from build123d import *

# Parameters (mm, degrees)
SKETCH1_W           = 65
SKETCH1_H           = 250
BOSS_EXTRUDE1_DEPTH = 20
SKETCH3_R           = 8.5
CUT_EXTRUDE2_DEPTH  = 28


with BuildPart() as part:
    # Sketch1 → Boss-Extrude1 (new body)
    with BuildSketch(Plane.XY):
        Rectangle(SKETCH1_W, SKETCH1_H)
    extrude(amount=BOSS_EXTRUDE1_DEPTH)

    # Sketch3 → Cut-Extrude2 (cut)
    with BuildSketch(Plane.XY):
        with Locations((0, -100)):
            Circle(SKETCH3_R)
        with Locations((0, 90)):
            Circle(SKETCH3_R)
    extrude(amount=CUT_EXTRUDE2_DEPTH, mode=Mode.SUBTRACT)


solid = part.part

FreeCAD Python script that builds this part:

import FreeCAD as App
import Part
import Sketcher
Q = App.Units.Quantity

doc = App.newDocument("Part")
params = doc.addObject("Spreadsheet::Sheet", "Params")
for row, (alias, value) in enumerate([
    ("sketch1_width", "65 mm"),
    ("sketch1_height", "250 mm"),
    ("pad1_length", "20 mm"),
    ("sketch2_diameter", "17 mm"),
    ("pocket1_length", "28 mm"),
], start=1):
    params.set(f"A{row}", alias)
    params.set(f"B{row}", "=" + value)
    params.setAlias(f"B{row}", alias)

body = doc.addObject("PartDesign::Body", "Body")

# Sketch on XY plane
sketch1 = body.newObject("Sketcher::SketchObject", "Sketch")
sketch1.AttachmentSupport = (doc.getObject("XY_Plane"), [""])
sketch1.MapMode = "FlatFace"
sketch1.addGeometry(Part.LineSegment(App.Vector(-32, 125, 0), App.Vector(-32, -125, 0)), False)
sketch1.addGeometry(Part.LineSegment(App.Vector(-32, -125, 0), App.Vector(32, -125, 0)), False)
sketch1.addGeometry(Part.LineSegment(App.Vector(32, -125, 0), App.Vector(32, 125, 0)), False)
sketch1.addGeometry(Part.LineSegment(App.Vector(32, 125, 0), App.Vector(-32, 125, 0)), False)
sketch1.addConstraint(Sketcher.Constraint("Coincident", 0, 2, 1, 1))
sketch1.addConstraint(Sketcher.Constraint("Coincident", 1, 2, 2, 1))
sketch1.addConstraint(Sketcher.Constraint("Coincident", 2, 2, 3, 1))
sketch1.addConstraint(Sketcher.Constraint("Coincident", 3, 2, 0, 1))
sketch1.addConstraint(Sketcher.Constraint("Vertical", 0))
sketch1.addConstraint(Sketcher.Constraint("Horizontal", 1))
sketch1.addConstraint(Sketcher.Constraint("Vertical", 2))
sketch1.addConstraint(Sketcher.Constraint("Horizontal", 3))
sketch1.addConstraint(Sketcher.Constraint("Symmetric", 0, 2, 2, 2, -1, 1))
sketch1.addConstraint(Sketcher.Constraint("DistanceX", 1, 1, 1, 2, Q("65 mm")))
sketch1.addConstraint(Sketcher.Constraint("DistanceY", 0, 2, 0, 1, Q("250 mm")))
sketch1.setExpression("Constraints[9]", "Params.sketch1_width")
sketch1.setExpression("Constraints[10]", "Params.sketch1_height")
pad1 = body.newObject("PartDesign::Pad", "Pad")
pad1.Profile = sketch1
pad1.setExpression("Length", "Params.pad1_length")

# Sketch on XY plane
sketch2 = body.newObject("Sketcher::SketchObject", "Sketch001")
sketch2.AttachmentSupport = (doc.getObject("XY_Plane"), [""])
sketch2.MapMode = "FlatFace"
sketch2.addGeometry(Part.Circle(App.Vector(0, -100, 0), App.Vector(0, 0, 1), 8), False)
sketch2.addGeometry(Part.Circle(App.Vector(0, 90, 0), App.Vector(0, 0, 1), 8), False)
sketch2.addConstraint(Sketcher.Constraint("Equal", 0, 1))
sketch2.addConstraint(Sketcher.Constraint("PointOnObject", 0, 3, -2))
sketch2.addConstraint(Sketcher.Constraint("PointOnObject", 1, 3, -2))
sketch2.addConstraint(Sketcher.Constraint("Diameter", 0, Q("17 mm")))
sketch2.addConstraint(Sketcher.Constraint("DistanceY", 0, 3, -1, 1, Q("100 mm")))
sketch2.addConstraint(Sketcher.Constraint("DistanceY", -1, 1, 1, 3, Q("90 mm")))
sketch2.setExpression("Constraints[3]", "Params.sketch2_diameter")
pocket1 = body.newObject("PartDesign::Pocket", "Pocket")
pocket1.Profile = sketch2
pocket1.setExpression("Length", "Params.pocket1_length")
pocket1.Reversed = True

doc.recompute()
